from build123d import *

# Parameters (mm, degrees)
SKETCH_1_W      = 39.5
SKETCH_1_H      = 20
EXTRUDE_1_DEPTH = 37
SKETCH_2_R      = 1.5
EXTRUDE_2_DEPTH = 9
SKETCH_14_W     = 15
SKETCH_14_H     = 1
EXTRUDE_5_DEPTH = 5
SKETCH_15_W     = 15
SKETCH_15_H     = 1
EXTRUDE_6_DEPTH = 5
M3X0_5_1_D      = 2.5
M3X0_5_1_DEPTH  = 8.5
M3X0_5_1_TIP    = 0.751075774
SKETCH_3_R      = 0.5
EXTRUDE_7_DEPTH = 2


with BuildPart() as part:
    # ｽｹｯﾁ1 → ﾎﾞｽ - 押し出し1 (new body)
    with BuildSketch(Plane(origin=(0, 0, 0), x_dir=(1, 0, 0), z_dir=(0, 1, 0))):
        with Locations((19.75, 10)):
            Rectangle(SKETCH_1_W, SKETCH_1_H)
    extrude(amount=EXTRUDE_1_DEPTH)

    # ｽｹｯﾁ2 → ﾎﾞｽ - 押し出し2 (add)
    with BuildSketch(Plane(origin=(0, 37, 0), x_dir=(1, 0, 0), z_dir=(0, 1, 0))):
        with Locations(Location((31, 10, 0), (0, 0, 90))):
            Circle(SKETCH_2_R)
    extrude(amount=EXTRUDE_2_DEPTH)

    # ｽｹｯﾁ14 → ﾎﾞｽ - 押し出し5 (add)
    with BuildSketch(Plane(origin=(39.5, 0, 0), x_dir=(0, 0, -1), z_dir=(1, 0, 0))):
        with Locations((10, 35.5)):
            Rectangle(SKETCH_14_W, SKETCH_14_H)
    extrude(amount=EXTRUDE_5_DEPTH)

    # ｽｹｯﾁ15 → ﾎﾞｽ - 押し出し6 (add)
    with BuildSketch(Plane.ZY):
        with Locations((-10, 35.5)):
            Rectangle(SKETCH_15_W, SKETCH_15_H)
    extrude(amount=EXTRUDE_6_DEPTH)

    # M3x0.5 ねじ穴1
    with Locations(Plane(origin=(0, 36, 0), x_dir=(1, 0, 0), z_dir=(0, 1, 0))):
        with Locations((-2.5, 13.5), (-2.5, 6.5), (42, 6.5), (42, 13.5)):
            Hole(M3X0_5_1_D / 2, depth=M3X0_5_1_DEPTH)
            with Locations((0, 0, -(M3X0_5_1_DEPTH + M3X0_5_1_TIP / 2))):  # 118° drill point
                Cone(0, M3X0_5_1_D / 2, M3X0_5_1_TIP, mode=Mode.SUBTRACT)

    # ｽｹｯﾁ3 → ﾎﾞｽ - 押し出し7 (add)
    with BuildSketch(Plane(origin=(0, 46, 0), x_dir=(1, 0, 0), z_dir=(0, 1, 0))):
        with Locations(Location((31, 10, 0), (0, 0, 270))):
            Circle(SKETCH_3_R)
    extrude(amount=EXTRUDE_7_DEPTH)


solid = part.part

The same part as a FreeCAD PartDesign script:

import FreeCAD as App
import Part
import Sketcher
from FreeCAD import Vector
Q = App.Units.Quantity

doc = App.newDocument("Part")
params = doc.addObject("Spreadsheet::Sheet", "Params")
for row, (alias, value) in enumerate([
    ("sketch1_height", "20 mm"),
    ("sketch1_width", "39.5 mm"),
    ("pad1_length", "37 mm"),
    ("sketch2_diameter", "3 mm"),
    ("pad2_length", "9 mm"),
    ("sketch3_width", "1 mm"),
    ("sketch3_height", "15 mm"),
    ("pad3_length", "5 mm"),
    ("sketch4_width", "1 mm"),
    ("sketch4_height", "15 mm"),
    ("pad4_length", "5 mm"),
    ("sketch5_diameter", "2.5 mm"),
    ("hole_diameter", "2.5 mm"),
    ("hole_depth", "8.5 mm"),
    ("sketch6_diameter", "1 mm"),
    ("pad5_length", "2 mm"),
], start=1):
    params.set(f"A{row}", alias)
    params.set(f"B{row}", "=" + value)
    params.setAlias(f"B{row}", alias)

body = doc.addObject("PartDesign::Body", "Body")

# Sketch on XZ plane
sketch1 = doc.addObject("Sketcher::SketchObject", "Sketch")
body.addObject(sketch1)
sketch1.AttachmentSupport = (doc.XZ_Plane, [""])
sketch1.MapMode = "FlatFace"
sketch1.addGeometry([
    Part.LineSegment(Vector(0, -20, 0), Vector(0, 0, 0)),
    Part.LineSegment(Vector(0, 0, 0), Vector(40, 0, 0)),
    Part.LineSegment(Vector(40, 0, 0), Vector(40, -20, 0)),
    Part.LineSegment(Vector(40, -20, 0), Vector(0, -20, 0)),
], False)
sketch1.addConstraint([
    Sketcher.Constraint("Coincident", 0, 2, 1, 1),
    Sketcher.Constraint("Coincident", 1, 2, 2, 1),
    Sketcher.Constraint("Coincident", 2, 2, 3, 1),
    Sketcher.Constraint("Coincident", 3, 2, 0, 1),
    Sketcher.Constraint("Vertical", 0),
    Sketcher.Constraint("Horizontal", 1),
    Sketcher.Constraint("Vertical", 2),
    Sketcher.Constraint("Horizontal", 3),
    Sketcher.Constraint("Coincident", 0, 2, -1, 1),
    Sketcher.Constraint("DistanceY", 0, 1, 0, 2, Q("20 mm")),
    Sketcher.Constraint("DistanceX", 1, 1, 1, 2, Q("39.5 mm")),
])
sketch1.setExpression("Constraints[9]", "Params.sketch1_height")
sketch1.setExpression("Constraints[10]", "Params.sketch1_width")
pad1 = doc.addObject("PartDesign::Pad", "Pad")
body.addObject(pad1)
pad1.Profile = sketch1
pad1.setExpression("Length", "Params.pad1_length")
pad1.Reversed = True

# Sketch on XZ plane
sketch2 = doc.addObject("Sketcher::SketchObject", "Sketch001")
body.addObject(sketch2)
sketch2.AttachmentSupport = (doc.XZ_Plane, [""])
sketch2.MapMode = "FlatFace"
sketch2.AttachmentOffset = App.Placement(Vector(0, 0, -37), App.Rotation())
sketch2.addGeometry(Part.Circle(Vector(31, -10, 0), Vector(0, 0, 1), 1.5), False)
sketch2.addConstraint([
    Sketcher.Constraint("Diameter", 0, Q("3 mm")),
    Sketcher.Constraint("DistanceX", -1, 1, 0, 3, Q("31 mm")),
    Sketcher.Constraint("DistanceY", 0, 3, -1, 1, Q("10 mm")),
])
sketch2.setExpression("Constraints[0]", "Params.sketch2_diameter")
pad2 = doc.addObject("PartDesign::Pad", "Pad001")
body.addObject(pad2)
pad2.Profile = sketch2
pad2.setExpression("Length", "Params.pad2_length")
pad2.Reversed = True

# Sketch on YZ plane
sketch3 = doc.addObject("Sketcher::SketchObject", "Sketch002")
body.addObject(sketch3)
sketch3.AttachmentSupport = (doc.YZ_Plane, [""])
sketch3.MapMode = "FlatFace"
sketch3.AttachmentOffset = App.Placement(Vector(0, 0, 39.5), App.Rotation())
sketch3.addGeometry([
    Part.LineSegment(Vector(36, -2.5, 0), Vector(35, -2.5, 0)),
    Part.LineSegment(Vector(35, -2.5, 0), Vector(35, -17.5, 0)),
    Part.LineSegment(Vector(35, -17.5, 0), Vector(36, -17.5, 0)),
    Part.LineSegment(Vector(36, -17.5, 0), Vector(36, -2.5, 0)),
], False)
sketch3.addConstraint([
    Sketcher.Constraint("Coincident", 0, 2, 1, 1),
    Sketcher.Constraint("Coincident", 1, 2, 2, 1),
    Sketcher.Constraint("Coincident", 2, 2, 3, 1),
    Sketcher.Constraint("Coincident", 3, 2, 0, 1),
    Sketcher.Constraint("Horizontal", 0),
    Sketcher.Constraint("Vertical", 1),
    Sketcher.Constraint("Horizontal", 2),
    Sketcher.Constraint("Vertical", 3),
    Sketcher.Constraint("DistanceX", 0, 2, 0, 1, Q("1 mm")),
    Sketcher.Constraint("DistanceY", 1, 2, 1, 1, Q("15 mm")),
    Sketcher.Constraint("DistanceX", -1, 1, 0, 2, Q("35 mm")),
    Sketcher.Constraint("DistanceY", 0, 2, -1, 1, Q("2.5 mm")),
])
sketch3.setExpression("Constraints[8]", "Params.sketch3_width")
sketch3.setExpression("Constraints[9]", "Params.sketch3_height")
pad3 = doc.addObject("PartDesign::Pad", "Pad002")
body.addObject(pad3)
pad3.Profile = sketch3
pad3.setExpression("Length", "Params.pad3_length")

# Sketch on YZ plane
sketch4 = doc.addObject("Sketcher::SketchObject", "Sketch003")
body.addObject(sketch4)
sketch4.AttachmentSupport = (doc.YZ_Plane, [""])
sketch4.MapMode = "FlatFace"
sketch4.addGeometry([
    Part.LineSegment(Vector(36, -17.5, 0), Vector(35, -17.5, 0)),
    Part.LineSegment(Vector(35, -17.5, 0), Vector(35, -2.5, 0)),
    Part.LineSegment(Vector(35, -2.5, 0), Vector(36, -2.5, 0)),
    Part.LineSegment(Vector(36, -2.5, 0), Vector(36, -17.5, 0)),
], False)
sketch4.addConstraint([
    Sketcher.Constraint("Coincident", 0, 2, 1, 1),
    Sketcher.Constraint("Coincident", 1, 2, 2, 1),
    Sketcher.Constraint("Coincident", 2, 2, 3, 1),
    Sketcher.Constraint("Coincident", 3, 2, 0, 1),
    Sketcher.Constraint("Horizontal", 0),
    Sketcher.Constraint("Vertical", 1),
    Sketcher.Constraint("Horizontal", 2),
    Sketcher.Constraint("Vertical", 3),
    Sketcher.Constraint("DistanceX", 0, 2, 0, 1, Q("1 mm")),
    Sketcher.Constraint("DistanceY", 1, 1, 1, 2, Q("15 mm")),
    Sketcher.Constraint("DistanceX", -1, 1, 0, 2, Q("35 mm")),
    Sketcher.Constraint("DistanceY", 0, 2, -1, 1, Q("17.5 mm")),
])
sketch4.setExpression("Constraints[8]", "Params.sketch4_width")
sketch4.setExpression("Constraints[9]", "Params.sketch4_height")
pad4 = doc.addObject("PartDesign::Pad", "Pad003")
body.addObject(pad4)
pad4.Profile = sketch4
pad4.setExpression("Length", "Params.pad4_length")
pad4.Reversed = True

# Sketch on XZ plane
sketch5 = doc.addObject("Sketcher::SketchObject", "Sketch004")
body.addObject(sketch5)
sketch5.AttachmentSupport = (doc.XZ_Plane, [""])
sketch5.MapMode = "FlatFace"
sketch5.AttachmentOffset = App.Placement(Vector(0, 0, -36), App.Rotation())
sketch5.addGeometry([
    Part.Circle(Vector(-2.5, -13.5, 0), Vector(0, 0, 1), 1.2),
    Part.Circle(Vector(-2.5, -6.5, 0), Vector(0, 0, 1), 1.2),
    Part.Circle(Vector(42, -6.5, 0), Vector(0, 0, 1), 1.2),
    Part.Circle(Vector(42, -13.5, 0), Vector(0, 0, 1), 1.2),
], False)
sketch5.addConstraint([
    Sketcher.Constraint("Equal", 0, 1),
    Sketcher.Constraint("Equal", 1, 2),
    Sketcher.Constraint("Equal", 2, 3),
    Sketcher.Constraint("Horizontal", 1, 3, 2, 3),
    Sketcher.Constraint("Horizontal", 0, 3, 3, 3),
    Sketcher.Constraint("Vertical", 0, 3, 1, 3),
    Sketcher.Constraint("Vertical", 2, 3, 3, 3),
    Sketcher.Constraint("Diameter", 0, Q("2.5 mm")),
    Sketcher.Constraint("DistanceX", -1, 1, 2, 3, Q("42 mm")),
    Sketcher.Constraint("DistanceY", 0, 3, 1, 3, Q("7 mm")),
    Sketcher.Constraint("DistanceX", 0, 3, -1, 1, Q("2.5 mm")),
    Sketcher.Constraint("DistanceY", 0, 3, -1, 1, Q("13.5 mm")),
])
sketch5.setExpression("Constraints[7]", "Params.sketch5_diameter")
doc.recompute()
hole = doc.addObject("PartDesign::Hole", "Hole")
body.addObject(hole)
hole.Profile = sketch5
hole.ThreadType = "None"
hole.setExpression("Diameter", "Params.hole_diameter")
hole.DepthType = "Dimension"
hole.setExpression("Depth", "Params.hole_depth")
hole.DrillPoint = "Angled"
hole.DrillPointAngle = 118
hole.Reversed = True

# Sketch on XZ plane
sketch6 = doc.addObject("Sketcher::SketchObject", "Sketch005")
body.addObject(sketch6)
sketch6.AttachmentSupport = (doc.XZ_Plane, [""])
sketch6.MapMode = "FlatFace"
sketch6.AttachmentOffset = App.Placement(Vector(0, 0, -46), App.Rotation())
sketch6.addGeometry(Part.Circle(Vector(31, -10, 0), Vector(0, 0, 1), 0.5), False)
sketch6.addConstraint([
    Sketcher.Constraint("Diameter", 0, Q("1 mm")),
    Sketcher.Constraint("DistanceX", -1, 1, 0, 3, Q("31 mm")),
    Sketcher.Constraint("DistanceY", 0, 3, -1, 1, Q("10 mm")),
])
sketch6.setExpression("Constraints[0]", "Params.sketch6_diameter")
pad5 = doc.addObject("PartDesign::Pad", "Pad004")
body.addObject(pad5)
pad5.Profile = sketch6
pad5.setExpression("Length", "Params.pad5_length")
pad5.Reversed = True

doc.recompute()
